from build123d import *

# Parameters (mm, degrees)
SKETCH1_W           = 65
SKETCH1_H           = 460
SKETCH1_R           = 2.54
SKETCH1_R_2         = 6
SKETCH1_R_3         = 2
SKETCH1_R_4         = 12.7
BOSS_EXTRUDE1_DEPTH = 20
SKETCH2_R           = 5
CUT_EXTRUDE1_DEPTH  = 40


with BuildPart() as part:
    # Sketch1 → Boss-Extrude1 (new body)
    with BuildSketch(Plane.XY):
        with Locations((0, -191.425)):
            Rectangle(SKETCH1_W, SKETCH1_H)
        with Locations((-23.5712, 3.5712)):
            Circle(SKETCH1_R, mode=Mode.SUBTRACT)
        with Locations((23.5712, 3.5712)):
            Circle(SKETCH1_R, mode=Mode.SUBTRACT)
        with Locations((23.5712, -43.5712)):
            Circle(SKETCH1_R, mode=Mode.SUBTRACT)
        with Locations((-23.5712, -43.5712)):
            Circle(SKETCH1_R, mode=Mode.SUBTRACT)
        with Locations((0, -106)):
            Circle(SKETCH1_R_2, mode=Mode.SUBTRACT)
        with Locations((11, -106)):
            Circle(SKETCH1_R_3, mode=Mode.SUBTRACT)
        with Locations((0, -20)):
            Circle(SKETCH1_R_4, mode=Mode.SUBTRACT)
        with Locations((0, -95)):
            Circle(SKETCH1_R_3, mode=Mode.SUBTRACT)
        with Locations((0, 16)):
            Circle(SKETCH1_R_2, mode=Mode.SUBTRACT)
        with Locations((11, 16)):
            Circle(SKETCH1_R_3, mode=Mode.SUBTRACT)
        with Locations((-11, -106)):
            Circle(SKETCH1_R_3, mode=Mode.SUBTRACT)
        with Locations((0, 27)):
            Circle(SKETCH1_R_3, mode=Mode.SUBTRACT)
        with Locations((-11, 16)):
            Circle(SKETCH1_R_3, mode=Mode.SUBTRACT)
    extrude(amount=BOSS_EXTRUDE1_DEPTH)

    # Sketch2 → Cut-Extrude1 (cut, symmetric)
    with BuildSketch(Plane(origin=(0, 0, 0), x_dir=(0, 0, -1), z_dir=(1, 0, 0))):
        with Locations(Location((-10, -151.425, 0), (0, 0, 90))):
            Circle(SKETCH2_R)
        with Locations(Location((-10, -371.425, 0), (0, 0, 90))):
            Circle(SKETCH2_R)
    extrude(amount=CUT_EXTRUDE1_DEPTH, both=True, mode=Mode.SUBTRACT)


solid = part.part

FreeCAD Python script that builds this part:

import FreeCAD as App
import Part
import Sketcher
Q = App.Units.Quantity


def add_polygon(sketch, points):
    """Adds a closed chain of lines whose ends are joined by coincident constraints."""
    first, n = sketch.GeometryCount, len(points)
    for a, b in zip(points, points[1:] + points[:1]):
        sketch.addGeometry(Part.LineSegment(App.Vector(*a, 0), App.Vector(*b, 0)), False)
    for i in range(n):
        sketch.addConstraint(Sketcher.Constraint("Coincident", first + i, 2, first + (i + 1) % n, 1))

doc = App.newDocument("Part")
body = doc.addObject("PartDesign::Body", "Body")

# Sketch on XY plane
sketch1 = doc.addObject("Sketcher::SketchObject", "Sketch")
body.addObject(sketch1)
sketch1.AttachmentSupport = (doc.XY_Plane, [""])
sketch1.MapMode = "FlatFace"
add_polygon(sketch1, [(-32.5, 38.6), (-32.5, -421.4), (32.5, -421.4), (32.5, 38.6)])  # lines 0-3
sketch1.addGeometry(Part.Circle(App.Vector(-11, -106, 0), App.Vector(0, 0, 1), 2), False)  # 4
sketch1.addGeometry(Part.Circle(App.Vector(0, -106, 0), App.Vector(0, 0, 1), 6), False)  # 5
sketch1.addGeometry(Part.Circle(App.Vector(0, -95, 0), App.Vector(0, 0, 1), 2), False)  # 6
sketch1.addGeometry(Part.Circle(App.Vector(-23.6, -43.6, 0), App.Vector(0, 0, 1), 2.5), False)  # 7
sketch1.addGeometry(Part.Circle(App.Vector(11, -106, 0), App.Vector(0, 0, 1), 2), False)  # 8
sketch1.addGeometry(Part.Circle(App.Vector(23.6, -43.6, 0), App.Vector(0, 0, 1), 2.5), False)  # 9
sketch1.addGeometry(Part.Circle(App.Vector(0, -20, 0), App.Vector(0, 0, 1), 12.7), False)  # 10
sketch1.addGeometry(Part.Circle(App.Vector(-23.6, 3.6, 0), App.Vector(0, 0, 1), 2.5), False)  # 11
sketch1.addGeometry(Part.Circle(App.Vector(-11, 16, 0), App.Vector(0, 0, 1), 2), False)  # 12
sketch1.addGeometry(Part.Circle(App.Vector(0, 16, 0), App.Vector(0, 0, 1), 6), False)  # 13
sketch1.addGeometry(Part.Circle(App.Vector(0, 27, 0), App.Vector(0, 0, 1), 2), False)  # 14
sketch1.addGeometry(Part.Circle(App.Vector(11, 16, 0), App.Vector(0, 0, 1), 2), False)  # 15
sketch1.addGeometry(Part.Circle(App.Vector(23.6, 3.6, 0), App.Vector(0, 0, 1), 2.5), False)  # 16
sketch1.addConstraint(Sketcher.Constraint("Vertical", 0))
sketch1.addConstraint(Sketcher.Constraint("Horizontal", 1))
sketch1.addConstraint(Sketcher.Constraint("Vertical", 2))
sketch1.addConstraint(Sketcher.Constraint("Horizontal", 3))
sketch1.addConstraint(Sketcher.Constraint("Equal", 4, 6))
sketch1.addConstraint(Sketcher.Constraint("Equal", 6, 8))
sketch1.addConstraint(Sketcher.Constraint("Equal", 7, 9))
sketch1.addConstraint(Sketcher.Constraint("Equal", 9, 11))
sketch1.addConstraint(Sketcher.Constraint("Equal", 8, 12))
sketch1.addConstraint(Sketcher.Constraint("Equal", 5, 13))
sketch1.addConstraint(Sketcher.Constraint("Equal", 12, 14))
sketch1.addConstraint(Sketcher.Constraint("Equal", 14, 15))
sketch1.addConstraint(Sketcher.Constraint("Equal", 11, 16))
sketch1.addConstraint(Sketcher.Constraint("Symmetric", 4, 3, 8, 3, -2))
sketch1.addConstraint(Sketcher.Constraint("Symmetric", 7, 3, 9, 3, -2))
sketch1.addConstraint(Sketcher.Constraint("Symmetric", 12, 3, 15, 3, -2))
sketch1.addConstraint(Sketcher.Constraint("Symmetric", 11, 3, 16, 3, -2))
sketch1.addConstraint(Sketcher.Constraint("PointOnObject", 5, 3, -2))
sketch1.addConstraint(Sketcher.Constraint("PointOnObject", 6, 3, -2))
sketch1.addConstraint(Sketcher.Constraint("PointOnObject", 10, 3, -2))
sketch1.addConstraint(Sketcher.Constraint("PointOnObject", 13, 3, -2))
sketch1.addConstraint(Sketcher.Constraint("PointOnObject", 14, 3, -2))
sketch1.addConstraint(Sketcher.Constraint("Horizontal", 4, 3, 5, 3))
sketch1.addConstraint(Sketcher.Constraint("Horizontal", 12, 3, 13, 3))
sketch1.addConstraint(Sketcher.Constraint("Vertical", 7, 3, 11, 3))
sketch1.addConstraint(Sketcher.Constraint("Vertical", 4, 3, 12, 3))
sketch1.addConstraint(Sketcher.Constraint("Diameter", 4, Q("4 mm")))
sketch1.addConstraint(Sketcher.Constraint("Diameter", 5, Q("12 mm")))
sketch1.addConstraint(Sketcher.Constraint("Diameter", 10, Q("25.4 mm")))
sketch1.addConstraint(Sketcher.Constraint("Diameter", 7, Q("5.08 mm")))
sketch1.addConstraint(Sketcher.Constraint("DistanceX", 1, 1, 1, 2, Q("65 mm")))
sketch1.addConstraint(Sketcher.Constraint("DistanceY", 0, 2, 0, 1, Q("460 mm")))
sketch1.addConstraint(Sketcher.Constraint("DistanceX", 4, 3, -1, 1, Q("11 mm")))
sketch1.addConstraint(Sketcher.Constraint("DistanceY", 4, 3, -1, 1, Q("106 mm")))
sketch1.addConstraint(Sketcher.Constraint("DistanceY", 6, 3, -1, 1, Q("95 mm")))
sketch1.addConstraint(Sketcher.Constraint("DistanceY", 10, 3, -1, 1, Q("20 mm")))
sketch1.addConstraint(Sketcher.Constraint("DistanceY", -1, 1, 12, 3, Q("16 mm")))
sketch1.addConstraint(Sketcher.Constraint("DistanceY", -1, 1, 14, 3, Q("27 mm")))
sketch1.addConstraint(Sketcher.Constraint("DistanceX", 0, 2, -1, 1, Q("32.5 mm")))
sketch1.addConstraint(Sketcher.Constraint("DistanceY", 0, 2, -1, 1, Q("421.425 mm")))
sketch1.addConstraint(Sketcher.Constraint("DistanceX", 7, 3, -1, 1, Q("23.5712 mm")))
sketch1.addConstraint(Sketcher.Constraint("DistanceY", 7, 3, -1, 1, Q("43.5712 mm")))
sketch1.addConstraint(Sketcher.Constraint("DistanceY", -1, 1, 11, 3, Q("3.5712 mm")))
pad1 = doc.addObject("PartDesign::Pad", "Pad")
body.addObject(pad1)
pad1.Profile = sketch1
pad1.Length = 20

# Sketch on YZ plane
sketch2 = doc.addObject("Sketcher::SketchObject", "Sketch001")
body.addObject(sketch2)
sketch2.AttachmentSupport = (doc.YZ_Plane, [""])
sketch2.MapMode = "FlatFace"
sketch2.addGeometry(Part.Circle(App.Vector(-151, 10, 0), App.Vector(0, 0, 1), 5), False)
sketch2.addGeometry(Part.Circle(App.Vector(-371, 10, 0), App.Vector(0, 0, 1), 5), False)
sketch2.addConstraint(Sketcher.Constraint("Equal", 0, 1))
sketch2.addConstraint(Sketcher.Constraint("Horizontal", 0, 3, 1, 3))
sketch2.addConstraint(Sketcher.Constraint("Diameter", 0, Q("10 mm")))
sketch2.addConstraint(Sketcher.Constraint("DistanceY", -1, 1, 0, 3, Q("10 mm")))
sketch2.addConstraint(Sketcher.Constraint("DistanceX", 1, 3, 0, 3, Q("220 mm")))
sketch2.addConstraint(Sketcher.Constraint("DistanceX", 0, 3, -1, 1, Q("151.425 mm")))
pocket1 = doc.addObject("PartDesign::Pocket", "Pocket")
body.addObject(pocket1)
pocket1.Profile = sketch2
pocket1.Length = 80
pocket1.Midplane = True

doc.recompute()
